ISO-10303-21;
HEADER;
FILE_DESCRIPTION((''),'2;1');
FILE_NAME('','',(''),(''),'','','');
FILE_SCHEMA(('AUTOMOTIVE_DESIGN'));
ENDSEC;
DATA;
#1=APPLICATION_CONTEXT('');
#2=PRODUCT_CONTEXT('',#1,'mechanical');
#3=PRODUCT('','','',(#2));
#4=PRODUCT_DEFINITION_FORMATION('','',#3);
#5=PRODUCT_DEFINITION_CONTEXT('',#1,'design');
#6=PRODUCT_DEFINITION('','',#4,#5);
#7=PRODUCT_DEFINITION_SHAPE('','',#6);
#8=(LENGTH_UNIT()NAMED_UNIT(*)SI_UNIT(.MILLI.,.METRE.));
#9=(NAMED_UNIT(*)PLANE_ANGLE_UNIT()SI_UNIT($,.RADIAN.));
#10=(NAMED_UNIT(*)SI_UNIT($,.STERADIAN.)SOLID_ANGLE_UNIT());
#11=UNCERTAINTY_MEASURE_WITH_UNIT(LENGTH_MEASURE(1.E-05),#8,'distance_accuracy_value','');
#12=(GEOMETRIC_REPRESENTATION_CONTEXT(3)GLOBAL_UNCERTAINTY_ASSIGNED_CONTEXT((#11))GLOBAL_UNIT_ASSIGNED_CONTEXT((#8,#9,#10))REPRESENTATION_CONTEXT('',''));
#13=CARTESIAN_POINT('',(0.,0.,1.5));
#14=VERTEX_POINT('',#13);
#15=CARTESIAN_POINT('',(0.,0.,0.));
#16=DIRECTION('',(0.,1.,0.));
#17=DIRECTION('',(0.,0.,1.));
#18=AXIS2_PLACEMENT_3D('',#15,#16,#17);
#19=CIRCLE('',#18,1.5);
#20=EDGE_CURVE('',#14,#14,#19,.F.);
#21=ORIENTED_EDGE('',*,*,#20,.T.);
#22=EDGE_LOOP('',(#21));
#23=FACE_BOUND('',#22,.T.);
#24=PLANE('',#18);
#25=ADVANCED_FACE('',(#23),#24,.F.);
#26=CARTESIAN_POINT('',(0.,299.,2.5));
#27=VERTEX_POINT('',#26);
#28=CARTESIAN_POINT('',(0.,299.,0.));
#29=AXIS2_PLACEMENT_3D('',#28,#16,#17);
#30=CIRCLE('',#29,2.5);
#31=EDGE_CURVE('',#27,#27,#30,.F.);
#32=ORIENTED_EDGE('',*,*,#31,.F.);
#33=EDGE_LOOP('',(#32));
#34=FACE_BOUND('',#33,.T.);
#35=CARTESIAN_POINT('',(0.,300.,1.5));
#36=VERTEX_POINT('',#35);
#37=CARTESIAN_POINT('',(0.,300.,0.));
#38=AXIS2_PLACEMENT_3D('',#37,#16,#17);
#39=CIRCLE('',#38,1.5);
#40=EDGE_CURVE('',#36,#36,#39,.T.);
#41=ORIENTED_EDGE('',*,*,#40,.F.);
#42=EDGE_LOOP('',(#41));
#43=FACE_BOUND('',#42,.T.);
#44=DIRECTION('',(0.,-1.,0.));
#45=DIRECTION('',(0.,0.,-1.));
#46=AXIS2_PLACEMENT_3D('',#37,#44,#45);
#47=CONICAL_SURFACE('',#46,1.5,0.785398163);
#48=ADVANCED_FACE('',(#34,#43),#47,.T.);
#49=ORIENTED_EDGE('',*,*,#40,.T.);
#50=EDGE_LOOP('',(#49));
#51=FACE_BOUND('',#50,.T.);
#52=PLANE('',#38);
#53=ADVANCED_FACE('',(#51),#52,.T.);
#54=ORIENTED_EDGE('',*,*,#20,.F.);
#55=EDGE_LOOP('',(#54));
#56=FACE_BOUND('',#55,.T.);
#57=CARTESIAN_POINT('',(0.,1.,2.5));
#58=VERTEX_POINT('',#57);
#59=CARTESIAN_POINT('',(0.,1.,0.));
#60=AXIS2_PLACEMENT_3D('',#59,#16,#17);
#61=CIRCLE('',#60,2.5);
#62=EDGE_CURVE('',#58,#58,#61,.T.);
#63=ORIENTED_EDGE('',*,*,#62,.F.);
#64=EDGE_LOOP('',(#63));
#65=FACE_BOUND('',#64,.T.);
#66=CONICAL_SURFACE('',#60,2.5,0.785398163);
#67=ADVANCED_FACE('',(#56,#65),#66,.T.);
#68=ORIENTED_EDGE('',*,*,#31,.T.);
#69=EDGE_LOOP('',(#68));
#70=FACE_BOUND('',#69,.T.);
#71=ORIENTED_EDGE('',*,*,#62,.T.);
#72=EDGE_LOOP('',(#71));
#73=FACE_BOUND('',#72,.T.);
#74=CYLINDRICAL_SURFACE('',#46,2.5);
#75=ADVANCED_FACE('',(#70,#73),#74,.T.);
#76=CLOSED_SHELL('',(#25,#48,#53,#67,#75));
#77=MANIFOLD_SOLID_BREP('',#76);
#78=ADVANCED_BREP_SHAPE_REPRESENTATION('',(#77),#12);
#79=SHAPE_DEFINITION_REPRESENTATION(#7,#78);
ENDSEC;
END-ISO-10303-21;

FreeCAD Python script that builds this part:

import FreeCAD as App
import Part
import Sketcher

V = App.Vector


def edges_at(feature, points):
    """Names of the edges that pass closest to the given points."""
    edges = feature.Shape.Edges
    near = lambda p: min(range(len(edges)), key=lambda i: edges[i].distToShape(Part.Vertex(*p))[0])
    return sorted({f"Edge{near(p) + 1}" for p in points})

doc = App.newDocument("Part")
body = doc.addObject("PartDesign::Body", "Body")

# Sketch on XZ plane
sketch1 = body.newObject("Sketcher::SketchObject", "Sketch")
sketch1.AttachmentSupport = (doc.getObject("XZ_Plane"), [""])
sketch1.MapMode = "FlatFace"
sketch1.addGeometry(Part.Circle(V(0, 0, 0), V(0, 0, 1), 2.5), False)
sketch1.addConstraint(Sketcher.Constraint("Coincident", 0, 3, -1, 1))
sketch1.addConstraint(Sketcher.Constraint("Diameter", 0, 5.0))
pad1 = body.newObject("PartDesign::Pad", "Pad")
pad1.Profile = sketch1
pad1.Length = 300
pad1.Reversed = True
doc.recompute()

chamfer = body.newObject("PartDesign::Chamfer", "Chamfer")
chamfer.Base = (pad1, edges_at(pad1, [(-2.5, 0, 0), (-2.5, 300, 0)]))
chamfer.Size = 1

doc.recompute()
